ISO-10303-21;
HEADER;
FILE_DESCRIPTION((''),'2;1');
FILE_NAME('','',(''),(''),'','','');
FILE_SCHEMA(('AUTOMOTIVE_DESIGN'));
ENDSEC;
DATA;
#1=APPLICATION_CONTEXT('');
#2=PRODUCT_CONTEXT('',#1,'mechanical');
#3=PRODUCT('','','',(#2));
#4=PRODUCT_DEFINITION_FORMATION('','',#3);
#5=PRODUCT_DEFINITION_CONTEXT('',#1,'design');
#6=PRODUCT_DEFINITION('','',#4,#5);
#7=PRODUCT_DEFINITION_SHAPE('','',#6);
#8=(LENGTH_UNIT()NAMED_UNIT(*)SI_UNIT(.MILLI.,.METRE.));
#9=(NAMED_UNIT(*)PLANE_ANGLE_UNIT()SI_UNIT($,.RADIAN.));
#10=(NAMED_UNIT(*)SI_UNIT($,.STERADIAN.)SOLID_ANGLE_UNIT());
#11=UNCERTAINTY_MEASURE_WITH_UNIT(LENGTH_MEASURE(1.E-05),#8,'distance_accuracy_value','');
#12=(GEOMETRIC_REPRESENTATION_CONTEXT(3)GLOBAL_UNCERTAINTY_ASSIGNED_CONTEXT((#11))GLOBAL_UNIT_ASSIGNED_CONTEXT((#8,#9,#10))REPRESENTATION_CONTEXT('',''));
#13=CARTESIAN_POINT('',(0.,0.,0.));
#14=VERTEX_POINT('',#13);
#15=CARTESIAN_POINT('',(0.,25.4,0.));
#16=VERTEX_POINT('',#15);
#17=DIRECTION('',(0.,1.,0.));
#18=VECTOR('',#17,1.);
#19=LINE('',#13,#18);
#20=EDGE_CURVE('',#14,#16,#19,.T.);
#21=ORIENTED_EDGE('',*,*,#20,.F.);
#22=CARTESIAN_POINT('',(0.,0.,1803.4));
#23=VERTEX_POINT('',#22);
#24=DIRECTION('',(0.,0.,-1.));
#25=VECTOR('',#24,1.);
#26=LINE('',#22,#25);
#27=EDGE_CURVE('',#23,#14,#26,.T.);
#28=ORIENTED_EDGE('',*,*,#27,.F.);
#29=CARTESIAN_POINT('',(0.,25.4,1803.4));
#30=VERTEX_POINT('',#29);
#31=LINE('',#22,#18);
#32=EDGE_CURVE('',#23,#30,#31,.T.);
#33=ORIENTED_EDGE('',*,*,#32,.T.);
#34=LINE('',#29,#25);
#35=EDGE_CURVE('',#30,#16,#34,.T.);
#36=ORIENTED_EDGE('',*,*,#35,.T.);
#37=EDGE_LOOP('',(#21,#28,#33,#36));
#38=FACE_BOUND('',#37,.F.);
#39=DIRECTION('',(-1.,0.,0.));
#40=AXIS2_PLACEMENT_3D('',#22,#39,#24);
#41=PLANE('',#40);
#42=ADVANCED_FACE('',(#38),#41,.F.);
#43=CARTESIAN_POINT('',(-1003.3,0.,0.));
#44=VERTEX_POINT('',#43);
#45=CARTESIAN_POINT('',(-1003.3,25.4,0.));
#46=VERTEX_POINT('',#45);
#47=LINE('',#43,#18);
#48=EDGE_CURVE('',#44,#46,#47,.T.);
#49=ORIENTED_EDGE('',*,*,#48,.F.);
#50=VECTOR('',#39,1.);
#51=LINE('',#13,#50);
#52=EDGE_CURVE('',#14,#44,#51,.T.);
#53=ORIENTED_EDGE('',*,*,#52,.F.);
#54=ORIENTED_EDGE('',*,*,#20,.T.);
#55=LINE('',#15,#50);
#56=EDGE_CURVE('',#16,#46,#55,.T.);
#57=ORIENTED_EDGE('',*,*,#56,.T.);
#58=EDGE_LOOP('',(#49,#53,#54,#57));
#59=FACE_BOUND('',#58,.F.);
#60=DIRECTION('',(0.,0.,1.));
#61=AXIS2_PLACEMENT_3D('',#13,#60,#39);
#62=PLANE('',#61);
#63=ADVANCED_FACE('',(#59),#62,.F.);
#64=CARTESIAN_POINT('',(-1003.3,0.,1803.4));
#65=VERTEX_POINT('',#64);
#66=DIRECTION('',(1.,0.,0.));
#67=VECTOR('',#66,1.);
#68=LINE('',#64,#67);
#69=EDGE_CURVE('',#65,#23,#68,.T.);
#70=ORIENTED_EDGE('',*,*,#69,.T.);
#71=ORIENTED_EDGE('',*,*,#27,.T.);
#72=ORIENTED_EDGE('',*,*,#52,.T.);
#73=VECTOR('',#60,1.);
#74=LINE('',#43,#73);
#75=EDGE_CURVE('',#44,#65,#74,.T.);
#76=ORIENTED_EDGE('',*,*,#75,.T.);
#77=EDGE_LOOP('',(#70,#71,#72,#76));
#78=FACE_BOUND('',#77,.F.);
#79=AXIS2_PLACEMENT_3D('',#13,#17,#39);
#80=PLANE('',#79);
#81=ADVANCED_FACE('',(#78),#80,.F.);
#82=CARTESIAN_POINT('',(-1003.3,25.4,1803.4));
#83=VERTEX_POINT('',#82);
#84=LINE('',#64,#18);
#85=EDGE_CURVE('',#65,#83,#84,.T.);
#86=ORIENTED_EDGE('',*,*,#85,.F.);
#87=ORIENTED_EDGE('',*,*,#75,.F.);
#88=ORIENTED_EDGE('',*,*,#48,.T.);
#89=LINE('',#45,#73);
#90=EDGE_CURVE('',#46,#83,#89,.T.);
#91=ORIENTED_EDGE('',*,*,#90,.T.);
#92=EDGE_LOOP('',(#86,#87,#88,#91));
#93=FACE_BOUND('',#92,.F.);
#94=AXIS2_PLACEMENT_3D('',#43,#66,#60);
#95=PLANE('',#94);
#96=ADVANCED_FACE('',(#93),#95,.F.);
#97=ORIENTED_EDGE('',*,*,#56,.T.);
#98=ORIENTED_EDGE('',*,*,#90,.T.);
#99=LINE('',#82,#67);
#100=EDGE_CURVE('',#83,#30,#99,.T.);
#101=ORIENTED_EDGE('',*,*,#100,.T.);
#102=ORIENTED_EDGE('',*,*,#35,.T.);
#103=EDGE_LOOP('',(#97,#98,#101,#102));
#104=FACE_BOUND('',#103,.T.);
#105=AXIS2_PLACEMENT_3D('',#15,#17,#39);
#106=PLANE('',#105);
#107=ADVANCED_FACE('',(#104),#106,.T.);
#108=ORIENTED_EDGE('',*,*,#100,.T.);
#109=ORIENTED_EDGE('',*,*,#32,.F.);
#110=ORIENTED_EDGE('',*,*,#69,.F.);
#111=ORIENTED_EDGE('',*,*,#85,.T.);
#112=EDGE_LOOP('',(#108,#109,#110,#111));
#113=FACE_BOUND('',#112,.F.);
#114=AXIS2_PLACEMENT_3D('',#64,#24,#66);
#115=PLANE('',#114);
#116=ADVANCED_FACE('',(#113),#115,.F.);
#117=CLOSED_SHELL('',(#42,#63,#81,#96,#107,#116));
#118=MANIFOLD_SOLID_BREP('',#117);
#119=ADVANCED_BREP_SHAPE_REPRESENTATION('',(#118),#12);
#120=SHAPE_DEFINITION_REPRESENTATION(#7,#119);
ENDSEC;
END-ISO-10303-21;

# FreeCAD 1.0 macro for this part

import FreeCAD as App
import Part
import Sketcher
from FreeCAD import Vector
Q = App.Units.Quantity


def add_polygon(sketch, points):
    """Adds a closed chain of lines whose ends are joined by coincident constraints."""
    first, n = sketch.GeometryCount, len(points)
    for a, b in zip(points, points[1:] + points[:1]):
        sketch.addGeometry(Part.LineSegment(App.Vector(*a, 0), App.Vector(*b, 0)), False)
    for i in range(n):
        sketch.addConstraint(Sketcher.Constraint("Coincident", first + i, 2, first + (i + 1) % n, 1))

doc = App.newDocument("Part")
body = doc.addObject("PartDesign::Body", "Body")

# Sketch on XZ plane
sketch1 = body.newObject("Sketcher::SketchObject", "Sketch")
sketch1.AttachmentSupport = (doc.getObject("XZ_Plane"), [""])
sketch1.MapMode = "FlatFace"
add_polygon(sketch1, [(0, 1803), (0, 0), (-1003, 0), (-1003, 1803)])  # lines 0-3
sketch1.addConstraint(Sketcher.Constraint("Vertical", 0))
sketch1.addConstraint(Sketcher.Constraint("Horizontal", 1))
sketch1.addConstraint(Sketcher.Constraint("Vertical", 2))
sketch1.addConstraint(Sketcher.Constraint("Horizontal", 3))
sketch1.addConstraint(Sketcher.Constraint("Coincident", 0, 2, -1, 1))
sketch1.addConstraint(Sketcher.Constraint("DistanceY", 0, 2, 0, 1, Q("71 in")))
sketch1.addConstraint(Sketcher.Constraint("DistanceX", 1, 2, 1, 1, Q("39.5 in")))
pad1 = body.newObject("PartDesign::Pad", "Pad")
pad1.Profile = sketch1
pad1.Length = Q("1 in")
pad1.Reversed = True

doc.recompute()
